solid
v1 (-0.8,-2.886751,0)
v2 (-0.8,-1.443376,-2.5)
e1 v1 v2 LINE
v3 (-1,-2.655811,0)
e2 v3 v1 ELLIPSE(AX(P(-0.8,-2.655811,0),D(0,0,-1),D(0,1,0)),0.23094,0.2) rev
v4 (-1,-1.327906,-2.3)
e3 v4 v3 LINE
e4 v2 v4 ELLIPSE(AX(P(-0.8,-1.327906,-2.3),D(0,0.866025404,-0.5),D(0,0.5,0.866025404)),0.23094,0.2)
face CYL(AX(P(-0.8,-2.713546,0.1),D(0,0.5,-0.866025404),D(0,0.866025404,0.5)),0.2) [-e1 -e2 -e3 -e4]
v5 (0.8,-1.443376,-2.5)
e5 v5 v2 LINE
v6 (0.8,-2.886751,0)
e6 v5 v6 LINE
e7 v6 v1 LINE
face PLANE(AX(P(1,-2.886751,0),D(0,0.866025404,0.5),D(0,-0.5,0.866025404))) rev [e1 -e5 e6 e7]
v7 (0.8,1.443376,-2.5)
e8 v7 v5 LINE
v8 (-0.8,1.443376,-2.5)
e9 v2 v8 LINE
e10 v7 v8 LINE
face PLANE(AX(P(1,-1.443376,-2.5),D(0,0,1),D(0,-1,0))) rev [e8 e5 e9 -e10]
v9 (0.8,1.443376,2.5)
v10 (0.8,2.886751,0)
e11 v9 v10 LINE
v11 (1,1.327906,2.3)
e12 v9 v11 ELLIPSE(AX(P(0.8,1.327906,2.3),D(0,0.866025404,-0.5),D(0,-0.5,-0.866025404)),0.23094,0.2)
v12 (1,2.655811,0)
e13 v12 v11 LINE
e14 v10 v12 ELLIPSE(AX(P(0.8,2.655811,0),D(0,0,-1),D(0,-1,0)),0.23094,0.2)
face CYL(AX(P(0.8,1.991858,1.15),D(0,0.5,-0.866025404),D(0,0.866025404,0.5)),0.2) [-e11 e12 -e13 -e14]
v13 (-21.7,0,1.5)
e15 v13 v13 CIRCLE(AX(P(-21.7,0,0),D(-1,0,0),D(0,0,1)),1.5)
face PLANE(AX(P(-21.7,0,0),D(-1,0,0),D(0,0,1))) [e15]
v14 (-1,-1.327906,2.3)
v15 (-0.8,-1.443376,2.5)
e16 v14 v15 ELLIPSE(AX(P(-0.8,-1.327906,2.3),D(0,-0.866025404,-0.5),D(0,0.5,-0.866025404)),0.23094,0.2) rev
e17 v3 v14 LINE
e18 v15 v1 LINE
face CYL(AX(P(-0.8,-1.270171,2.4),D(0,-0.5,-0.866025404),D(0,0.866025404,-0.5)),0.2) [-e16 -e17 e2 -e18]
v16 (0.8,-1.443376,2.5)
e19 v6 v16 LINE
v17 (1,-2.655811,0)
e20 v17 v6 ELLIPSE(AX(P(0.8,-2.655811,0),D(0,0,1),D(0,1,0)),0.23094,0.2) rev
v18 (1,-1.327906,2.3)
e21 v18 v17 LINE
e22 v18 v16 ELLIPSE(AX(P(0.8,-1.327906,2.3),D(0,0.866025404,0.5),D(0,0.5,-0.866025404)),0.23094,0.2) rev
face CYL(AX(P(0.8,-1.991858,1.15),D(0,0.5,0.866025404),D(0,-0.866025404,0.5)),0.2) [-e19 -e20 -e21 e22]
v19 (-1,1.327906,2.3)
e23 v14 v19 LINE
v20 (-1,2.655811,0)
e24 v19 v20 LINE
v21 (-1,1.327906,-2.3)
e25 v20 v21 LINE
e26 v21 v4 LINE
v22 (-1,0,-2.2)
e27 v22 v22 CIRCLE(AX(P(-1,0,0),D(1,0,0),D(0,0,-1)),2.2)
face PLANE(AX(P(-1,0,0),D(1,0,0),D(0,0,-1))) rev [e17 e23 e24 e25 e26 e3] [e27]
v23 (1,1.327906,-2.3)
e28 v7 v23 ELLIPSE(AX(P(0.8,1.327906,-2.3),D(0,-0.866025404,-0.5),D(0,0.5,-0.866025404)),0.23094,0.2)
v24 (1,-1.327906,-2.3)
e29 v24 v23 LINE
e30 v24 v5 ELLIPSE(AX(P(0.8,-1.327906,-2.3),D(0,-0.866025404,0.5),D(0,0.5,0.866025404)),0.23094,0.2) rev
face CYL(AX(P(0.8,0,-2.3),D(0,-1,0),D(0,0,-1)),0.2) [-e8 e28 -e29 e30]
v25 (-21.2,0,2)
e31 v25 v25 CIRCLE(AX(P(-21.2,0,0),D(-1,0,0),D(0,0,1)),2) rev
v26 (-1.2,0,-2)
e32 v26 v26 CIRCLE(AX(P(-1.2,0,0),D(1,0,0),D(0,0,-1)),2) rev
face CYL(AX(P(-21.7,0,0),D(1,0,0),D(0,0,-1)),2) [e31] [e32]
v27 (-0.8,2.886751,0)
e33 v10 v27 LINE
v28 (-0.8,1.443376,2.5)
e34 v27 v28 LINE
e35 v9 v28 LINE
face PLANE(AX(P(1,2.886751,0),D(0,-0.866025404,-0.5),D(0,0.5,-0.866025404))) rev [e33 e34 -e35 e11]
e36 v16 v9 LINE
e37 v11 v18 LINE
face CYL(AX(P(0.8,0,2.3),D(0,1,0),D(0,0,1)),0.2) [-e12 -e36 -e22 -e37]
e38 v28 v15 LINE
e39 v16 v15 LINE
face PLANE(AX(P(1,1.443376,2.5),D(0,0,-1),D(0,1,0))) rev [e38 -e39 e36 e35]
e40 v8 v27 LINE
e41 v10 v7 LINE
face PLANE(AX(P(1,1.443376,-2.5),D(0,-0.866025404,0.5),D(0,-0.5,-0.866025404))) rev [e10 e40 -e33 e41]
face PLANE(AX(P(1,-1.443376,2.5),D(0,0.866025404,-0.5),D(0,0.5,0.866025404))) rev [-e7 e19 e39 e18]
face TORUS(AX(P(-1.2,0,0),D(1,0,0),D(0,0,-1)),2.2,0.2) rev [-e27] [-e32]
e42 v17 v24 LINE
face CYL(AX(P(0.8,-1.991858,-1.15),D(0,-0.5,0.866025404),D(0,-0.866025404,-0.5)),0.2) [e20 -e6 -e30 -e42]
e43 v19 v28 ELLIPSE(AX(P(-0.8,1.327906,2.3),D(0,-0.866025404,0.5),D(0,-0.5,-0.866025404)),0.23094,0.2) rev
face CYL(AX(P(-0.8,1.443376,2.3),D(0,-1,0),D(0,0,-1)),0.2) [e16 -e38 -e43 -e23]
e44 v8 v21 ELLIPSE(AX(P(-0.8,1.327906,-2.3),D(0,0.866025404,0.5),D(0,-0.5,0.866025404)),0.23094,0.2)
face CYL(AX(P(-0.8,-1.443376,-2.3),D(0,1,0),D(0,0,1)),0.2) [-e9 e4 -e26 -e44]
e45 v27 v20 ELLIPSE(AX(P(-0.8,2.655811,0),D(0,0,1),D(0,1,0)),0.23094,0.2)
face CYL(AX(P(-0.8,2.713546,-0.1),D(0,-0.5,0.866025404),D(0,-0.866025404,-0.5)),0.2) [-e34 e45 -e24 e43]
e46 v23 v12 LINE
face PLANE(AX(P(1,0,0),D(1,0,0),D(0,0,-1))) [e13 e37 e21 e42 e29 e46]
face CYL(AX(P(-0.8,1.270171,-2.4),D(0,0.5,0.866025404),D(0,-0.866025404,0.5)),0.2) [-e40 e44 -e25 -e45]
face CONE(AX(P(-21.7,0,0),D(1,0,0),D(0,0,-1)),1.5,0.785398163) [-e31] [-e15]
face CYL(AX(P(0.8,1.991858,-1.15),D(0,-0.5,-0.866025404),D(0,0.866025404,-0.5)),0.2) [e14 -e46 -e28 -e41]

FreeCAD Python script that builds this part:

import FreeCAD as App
import Part
import Sketcher
from FreeCAD import Vector
Q = App.Units.Quantity


def edges_at(feature, points):
    """Names of the edges that pass closest to the given points."""
    edges = feature.Shape.Edges
    near = lambda p: min(range(len(edges)), key=lambda i: edges[i].distToShape(Part.Vertex(*p))[0])
    return sorted({f"Edge{near(p) + 1}" for p in points})

doc = App.newDocument("Part")
params = doc.addObject("Spreadsheet::Sheet", "Params")
for row, (alias, value) in enumerate([
    ("pad1_length", "2 mm"),
    ("fillet_radius", "0.2 mm"),
    ("sketch2_diameter", "4 mm"),
    ("pad2_length", "20.7 mm"),
    ("chamfer_size", "0.5 mm"),
    ("fillet2_radius", "0.2 mm"),
], start=1):
    params.set(f"A{row}", alias)
    params.set(f"B{row}", "=" + value)
    params.setAlias(f"B{row}", alias)

body = doc.addObject("PartDesign::Body", "Body")

sketch1 = body.newObject("Sketcher::SketchObject", "Sketch")
sketch1.AttachmentSupport = (doc.getObject("YZ_Plane"), [""])
sketch1.MapMode = "FlatFace"
sketch1.addGeometry([
    Part.LineSegment(Vector(2.9, 0, 0), Vector(1.4, 2.5, 0)),
    Part.LineSegment(Vector(1.4, 2.5, 0), Vector(-1.4, 2.5, 0)),
    Part.LineSegment(Vector(-1.4, 2.5, 0), Vector(-2.9, 0, 0)),
    Part.LineSegment(Vector(-2.9, 0, 0), Vector(-1.4, -2.5, 0)),
    Part.LineSegment(Vector(-1.4, -2.5, 0), Vector(1.4, -2.5, 0)),
    Part.LineSegment(Vector(1.4, -2.5, 0), Vector(2.9, 0, 0)),
], False)
sketch1.addConstraint([
    Sketcher.Constraint("Coincident", 0, 2, 1, 1),
    Sketcher.Constraint("Coincident", 1, 2, 2, 1),
    Sketcher.Constraint("Coincident", 2, 2, 3, 1),
    Sketcher.Constraint("Coincident", 3, 2, 4, 1),
    Sketcher.Constraint("Coincident", 4, 2, 5, 1),
    Sketcher.Constraint("Coincident", 5, 2, 0, 1),
    Sketcher.Constraint("Horizontal", 1),
    Sketcher.Constraint("Horizontal", 4),
    Sketcher.Constraint("Symmetric", 0, 2, 3, 2, -1, 1),
    Sketcher.Constraint("Symmetric", 2, 2, 5, 2, -1, 1),
    Sketcher.Constraint("PointOnObject", 2, 2, -1),
    Sketcher.Constraint("Parallel", 2, 5),
    Sketcher.Constraint("Vertical", 1, 2, 3, 2),
    Sketcher.Constraint("Angle", 0, Q("120 deg")),
    Sketcher.Constraint("DistanceY", 3, 2, 1, 2, Q("5 mm")),
    Sketcher.Constraint("DistanceX", 1, 2, 1, 1, Q("2.886751 mm")),
])
pad1 = body.newObject("PartDesign::Pad", "Pad")
pad1.Profile = sketch1
pad1.setExpression("Length", "Params.pad1_length")
pad1.Midplane = True
doc.recompute()

fillet = body.newObject("PartDesign::Fillet", "Fillet")
fillet.Base = (pad1, edges_at(pad1, [
    (1, 0, 2.5),
    (1, -2.165, 1.25),
    (1, -2.165, -1.25),
    (1, 0, -2.5),
    (1, 2.165, -1.25),
    (-1, 0, -2.5),
    (-1, -2.165, -1.25),
    (-1, -2.165, 1.25),
    (-1, 0, 2.5),
    (-1, 2.165, 1.25),
    (-1, 2.165, -1.25),
    (1, 2.165, 1.25),
]))
fillet.setExpression("Radius", "Params.fillet_radius")

sketch2 = body.newObject("Sketcher::SketchObject", "Sketch001")
sketch2.AttachmentSupport = (doc.getObject("YZ_Plane"), [""])
sketch2.MapMode = "FlatFace"
sketch2.AttachmentOffset = App.Placement(Vector(0, 0, -1), App.Rotation())
sketch2.addGeometry(Part.Circle(Vector(0, 0, 0), Vector(0, 0, 1), 2), False)
sketch2.addConstraint([
    Sketcher.Constraint("Coincident", 0, 3, -1, 1),
    Sketcher.Constraint("Diameter", 0, Q("4 mm")),
])
sketch2.setExpression("Constraints[1]", "Params.sketch2_diameter")
pad2 = body.newObject("PartDesign::Pad", "Pad001")
pad2.Profile = sketch2
pad2.setExpression("Length", "Params.pad2_length")
pad2.Reversed = True
doc.recompute()

chamfer = body.newObject("PartDesign::Chamfer", "Chamfer")
chamfer.Base = (pad2, edges_at(pad2, [(-21.7, 0, 2)]))
chamfer.setExpression("Size", "Params.chamfer_size")
doc.recompute()

fillet2 = body.newObject("PartDesign::Fillet", "Fillet001")
fillet2.Base = (chamfer, edges_at(chamfer, [(-1, 0, 2)]))
fillet2.setExpression("Radius", "Params.fillet2_radius")

doc.recompute()
